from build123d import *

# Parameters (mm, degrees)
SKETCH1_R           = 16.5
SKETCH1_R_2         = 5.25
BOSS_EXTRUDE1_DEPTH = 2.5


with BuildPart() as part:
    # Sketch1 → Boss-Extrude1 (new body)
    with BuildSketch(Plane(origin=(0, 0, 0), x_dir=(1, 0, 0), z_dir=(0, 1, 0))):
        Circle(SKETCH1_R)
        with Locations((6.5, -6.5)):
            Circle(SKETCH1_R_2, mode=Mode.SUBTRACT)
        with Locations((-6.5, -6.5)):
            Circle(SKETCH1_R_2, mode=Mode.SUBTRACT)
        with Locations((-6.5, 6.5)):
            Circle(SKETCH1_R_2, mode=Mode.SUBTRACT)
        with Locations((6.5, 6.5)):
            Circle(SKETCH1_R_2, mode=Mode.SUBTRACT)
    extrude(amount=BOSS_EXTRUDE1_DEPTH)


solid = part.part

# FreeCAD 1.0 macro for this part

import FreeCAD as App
import Part
import Sketcher

doc = App.newDocument("Part")
body = doc.addObject("PartDesign::Body", "Body")

sketch1 = body.newObject("Sketcher::SketchObject", "Sketch")
sketch1.AttachmentSupport = (doc.getObject("XZ_Plane"), [""])
sketch1.MapMode = "FlatFace"
sketch1.addGeometry([
    Part.Circle(App.Vector(0, 0, 0), App.Vector(0, 0, 1), 16.5),
    Part.Circle(App.Vector(-6.5, 6.5, 0), App.Vector(0, 0, 1), 5.25),
    Part.Circle(App.Vector(6.5, 6.5, 0), App.Vector(0, 0, 1), 5.25),
    Part.Circle(App.Vector(-6.5, -6.5, 0), App.Vector(0, 0, 1), 5.25),
    Part.Circle(App.Vector(6.5, -6.5, 0), App.Vector(0, 0, 1), 5.25),
], False)
sketch1.addConstraint([
    Sketcher.Constraint("Coincident", 0, 3, -1, 1),
    Sketcher.Constraint("Equal", 1, 2),
    Sketcher.Constraint("Equal", 2, 3),
    Sketcher.Constraint("Equal", 3, 4),
    Sketcher.Constraint("Symmetric", 2, 3, 3, 3, -1, 1),
    Sketcher.Constraint("Symmetric", 1, 3, 4, 3, -1, 1),
    Sketcher.Constraint("Symmetric", 1, 3, 2, 3, -2),
    Sketcher.Constraint("Diameter", 0, 33.0),
    Sketcher.Constraint("Diameter", 1, 10.5),
    Sketcher.Constraint("DistanceX", 1, 3, 2, 3, 13.0),
    Sketcher.Constraint("DistanceY", 3, 3, 1, 3, 13.0),
])
pad1 = body.newObject("PartDesign::Pad", "Pad")
pad1.Profile = sketch1
pad1.Length = 2.5
pad1.Reversed = True

doc.recompute()
